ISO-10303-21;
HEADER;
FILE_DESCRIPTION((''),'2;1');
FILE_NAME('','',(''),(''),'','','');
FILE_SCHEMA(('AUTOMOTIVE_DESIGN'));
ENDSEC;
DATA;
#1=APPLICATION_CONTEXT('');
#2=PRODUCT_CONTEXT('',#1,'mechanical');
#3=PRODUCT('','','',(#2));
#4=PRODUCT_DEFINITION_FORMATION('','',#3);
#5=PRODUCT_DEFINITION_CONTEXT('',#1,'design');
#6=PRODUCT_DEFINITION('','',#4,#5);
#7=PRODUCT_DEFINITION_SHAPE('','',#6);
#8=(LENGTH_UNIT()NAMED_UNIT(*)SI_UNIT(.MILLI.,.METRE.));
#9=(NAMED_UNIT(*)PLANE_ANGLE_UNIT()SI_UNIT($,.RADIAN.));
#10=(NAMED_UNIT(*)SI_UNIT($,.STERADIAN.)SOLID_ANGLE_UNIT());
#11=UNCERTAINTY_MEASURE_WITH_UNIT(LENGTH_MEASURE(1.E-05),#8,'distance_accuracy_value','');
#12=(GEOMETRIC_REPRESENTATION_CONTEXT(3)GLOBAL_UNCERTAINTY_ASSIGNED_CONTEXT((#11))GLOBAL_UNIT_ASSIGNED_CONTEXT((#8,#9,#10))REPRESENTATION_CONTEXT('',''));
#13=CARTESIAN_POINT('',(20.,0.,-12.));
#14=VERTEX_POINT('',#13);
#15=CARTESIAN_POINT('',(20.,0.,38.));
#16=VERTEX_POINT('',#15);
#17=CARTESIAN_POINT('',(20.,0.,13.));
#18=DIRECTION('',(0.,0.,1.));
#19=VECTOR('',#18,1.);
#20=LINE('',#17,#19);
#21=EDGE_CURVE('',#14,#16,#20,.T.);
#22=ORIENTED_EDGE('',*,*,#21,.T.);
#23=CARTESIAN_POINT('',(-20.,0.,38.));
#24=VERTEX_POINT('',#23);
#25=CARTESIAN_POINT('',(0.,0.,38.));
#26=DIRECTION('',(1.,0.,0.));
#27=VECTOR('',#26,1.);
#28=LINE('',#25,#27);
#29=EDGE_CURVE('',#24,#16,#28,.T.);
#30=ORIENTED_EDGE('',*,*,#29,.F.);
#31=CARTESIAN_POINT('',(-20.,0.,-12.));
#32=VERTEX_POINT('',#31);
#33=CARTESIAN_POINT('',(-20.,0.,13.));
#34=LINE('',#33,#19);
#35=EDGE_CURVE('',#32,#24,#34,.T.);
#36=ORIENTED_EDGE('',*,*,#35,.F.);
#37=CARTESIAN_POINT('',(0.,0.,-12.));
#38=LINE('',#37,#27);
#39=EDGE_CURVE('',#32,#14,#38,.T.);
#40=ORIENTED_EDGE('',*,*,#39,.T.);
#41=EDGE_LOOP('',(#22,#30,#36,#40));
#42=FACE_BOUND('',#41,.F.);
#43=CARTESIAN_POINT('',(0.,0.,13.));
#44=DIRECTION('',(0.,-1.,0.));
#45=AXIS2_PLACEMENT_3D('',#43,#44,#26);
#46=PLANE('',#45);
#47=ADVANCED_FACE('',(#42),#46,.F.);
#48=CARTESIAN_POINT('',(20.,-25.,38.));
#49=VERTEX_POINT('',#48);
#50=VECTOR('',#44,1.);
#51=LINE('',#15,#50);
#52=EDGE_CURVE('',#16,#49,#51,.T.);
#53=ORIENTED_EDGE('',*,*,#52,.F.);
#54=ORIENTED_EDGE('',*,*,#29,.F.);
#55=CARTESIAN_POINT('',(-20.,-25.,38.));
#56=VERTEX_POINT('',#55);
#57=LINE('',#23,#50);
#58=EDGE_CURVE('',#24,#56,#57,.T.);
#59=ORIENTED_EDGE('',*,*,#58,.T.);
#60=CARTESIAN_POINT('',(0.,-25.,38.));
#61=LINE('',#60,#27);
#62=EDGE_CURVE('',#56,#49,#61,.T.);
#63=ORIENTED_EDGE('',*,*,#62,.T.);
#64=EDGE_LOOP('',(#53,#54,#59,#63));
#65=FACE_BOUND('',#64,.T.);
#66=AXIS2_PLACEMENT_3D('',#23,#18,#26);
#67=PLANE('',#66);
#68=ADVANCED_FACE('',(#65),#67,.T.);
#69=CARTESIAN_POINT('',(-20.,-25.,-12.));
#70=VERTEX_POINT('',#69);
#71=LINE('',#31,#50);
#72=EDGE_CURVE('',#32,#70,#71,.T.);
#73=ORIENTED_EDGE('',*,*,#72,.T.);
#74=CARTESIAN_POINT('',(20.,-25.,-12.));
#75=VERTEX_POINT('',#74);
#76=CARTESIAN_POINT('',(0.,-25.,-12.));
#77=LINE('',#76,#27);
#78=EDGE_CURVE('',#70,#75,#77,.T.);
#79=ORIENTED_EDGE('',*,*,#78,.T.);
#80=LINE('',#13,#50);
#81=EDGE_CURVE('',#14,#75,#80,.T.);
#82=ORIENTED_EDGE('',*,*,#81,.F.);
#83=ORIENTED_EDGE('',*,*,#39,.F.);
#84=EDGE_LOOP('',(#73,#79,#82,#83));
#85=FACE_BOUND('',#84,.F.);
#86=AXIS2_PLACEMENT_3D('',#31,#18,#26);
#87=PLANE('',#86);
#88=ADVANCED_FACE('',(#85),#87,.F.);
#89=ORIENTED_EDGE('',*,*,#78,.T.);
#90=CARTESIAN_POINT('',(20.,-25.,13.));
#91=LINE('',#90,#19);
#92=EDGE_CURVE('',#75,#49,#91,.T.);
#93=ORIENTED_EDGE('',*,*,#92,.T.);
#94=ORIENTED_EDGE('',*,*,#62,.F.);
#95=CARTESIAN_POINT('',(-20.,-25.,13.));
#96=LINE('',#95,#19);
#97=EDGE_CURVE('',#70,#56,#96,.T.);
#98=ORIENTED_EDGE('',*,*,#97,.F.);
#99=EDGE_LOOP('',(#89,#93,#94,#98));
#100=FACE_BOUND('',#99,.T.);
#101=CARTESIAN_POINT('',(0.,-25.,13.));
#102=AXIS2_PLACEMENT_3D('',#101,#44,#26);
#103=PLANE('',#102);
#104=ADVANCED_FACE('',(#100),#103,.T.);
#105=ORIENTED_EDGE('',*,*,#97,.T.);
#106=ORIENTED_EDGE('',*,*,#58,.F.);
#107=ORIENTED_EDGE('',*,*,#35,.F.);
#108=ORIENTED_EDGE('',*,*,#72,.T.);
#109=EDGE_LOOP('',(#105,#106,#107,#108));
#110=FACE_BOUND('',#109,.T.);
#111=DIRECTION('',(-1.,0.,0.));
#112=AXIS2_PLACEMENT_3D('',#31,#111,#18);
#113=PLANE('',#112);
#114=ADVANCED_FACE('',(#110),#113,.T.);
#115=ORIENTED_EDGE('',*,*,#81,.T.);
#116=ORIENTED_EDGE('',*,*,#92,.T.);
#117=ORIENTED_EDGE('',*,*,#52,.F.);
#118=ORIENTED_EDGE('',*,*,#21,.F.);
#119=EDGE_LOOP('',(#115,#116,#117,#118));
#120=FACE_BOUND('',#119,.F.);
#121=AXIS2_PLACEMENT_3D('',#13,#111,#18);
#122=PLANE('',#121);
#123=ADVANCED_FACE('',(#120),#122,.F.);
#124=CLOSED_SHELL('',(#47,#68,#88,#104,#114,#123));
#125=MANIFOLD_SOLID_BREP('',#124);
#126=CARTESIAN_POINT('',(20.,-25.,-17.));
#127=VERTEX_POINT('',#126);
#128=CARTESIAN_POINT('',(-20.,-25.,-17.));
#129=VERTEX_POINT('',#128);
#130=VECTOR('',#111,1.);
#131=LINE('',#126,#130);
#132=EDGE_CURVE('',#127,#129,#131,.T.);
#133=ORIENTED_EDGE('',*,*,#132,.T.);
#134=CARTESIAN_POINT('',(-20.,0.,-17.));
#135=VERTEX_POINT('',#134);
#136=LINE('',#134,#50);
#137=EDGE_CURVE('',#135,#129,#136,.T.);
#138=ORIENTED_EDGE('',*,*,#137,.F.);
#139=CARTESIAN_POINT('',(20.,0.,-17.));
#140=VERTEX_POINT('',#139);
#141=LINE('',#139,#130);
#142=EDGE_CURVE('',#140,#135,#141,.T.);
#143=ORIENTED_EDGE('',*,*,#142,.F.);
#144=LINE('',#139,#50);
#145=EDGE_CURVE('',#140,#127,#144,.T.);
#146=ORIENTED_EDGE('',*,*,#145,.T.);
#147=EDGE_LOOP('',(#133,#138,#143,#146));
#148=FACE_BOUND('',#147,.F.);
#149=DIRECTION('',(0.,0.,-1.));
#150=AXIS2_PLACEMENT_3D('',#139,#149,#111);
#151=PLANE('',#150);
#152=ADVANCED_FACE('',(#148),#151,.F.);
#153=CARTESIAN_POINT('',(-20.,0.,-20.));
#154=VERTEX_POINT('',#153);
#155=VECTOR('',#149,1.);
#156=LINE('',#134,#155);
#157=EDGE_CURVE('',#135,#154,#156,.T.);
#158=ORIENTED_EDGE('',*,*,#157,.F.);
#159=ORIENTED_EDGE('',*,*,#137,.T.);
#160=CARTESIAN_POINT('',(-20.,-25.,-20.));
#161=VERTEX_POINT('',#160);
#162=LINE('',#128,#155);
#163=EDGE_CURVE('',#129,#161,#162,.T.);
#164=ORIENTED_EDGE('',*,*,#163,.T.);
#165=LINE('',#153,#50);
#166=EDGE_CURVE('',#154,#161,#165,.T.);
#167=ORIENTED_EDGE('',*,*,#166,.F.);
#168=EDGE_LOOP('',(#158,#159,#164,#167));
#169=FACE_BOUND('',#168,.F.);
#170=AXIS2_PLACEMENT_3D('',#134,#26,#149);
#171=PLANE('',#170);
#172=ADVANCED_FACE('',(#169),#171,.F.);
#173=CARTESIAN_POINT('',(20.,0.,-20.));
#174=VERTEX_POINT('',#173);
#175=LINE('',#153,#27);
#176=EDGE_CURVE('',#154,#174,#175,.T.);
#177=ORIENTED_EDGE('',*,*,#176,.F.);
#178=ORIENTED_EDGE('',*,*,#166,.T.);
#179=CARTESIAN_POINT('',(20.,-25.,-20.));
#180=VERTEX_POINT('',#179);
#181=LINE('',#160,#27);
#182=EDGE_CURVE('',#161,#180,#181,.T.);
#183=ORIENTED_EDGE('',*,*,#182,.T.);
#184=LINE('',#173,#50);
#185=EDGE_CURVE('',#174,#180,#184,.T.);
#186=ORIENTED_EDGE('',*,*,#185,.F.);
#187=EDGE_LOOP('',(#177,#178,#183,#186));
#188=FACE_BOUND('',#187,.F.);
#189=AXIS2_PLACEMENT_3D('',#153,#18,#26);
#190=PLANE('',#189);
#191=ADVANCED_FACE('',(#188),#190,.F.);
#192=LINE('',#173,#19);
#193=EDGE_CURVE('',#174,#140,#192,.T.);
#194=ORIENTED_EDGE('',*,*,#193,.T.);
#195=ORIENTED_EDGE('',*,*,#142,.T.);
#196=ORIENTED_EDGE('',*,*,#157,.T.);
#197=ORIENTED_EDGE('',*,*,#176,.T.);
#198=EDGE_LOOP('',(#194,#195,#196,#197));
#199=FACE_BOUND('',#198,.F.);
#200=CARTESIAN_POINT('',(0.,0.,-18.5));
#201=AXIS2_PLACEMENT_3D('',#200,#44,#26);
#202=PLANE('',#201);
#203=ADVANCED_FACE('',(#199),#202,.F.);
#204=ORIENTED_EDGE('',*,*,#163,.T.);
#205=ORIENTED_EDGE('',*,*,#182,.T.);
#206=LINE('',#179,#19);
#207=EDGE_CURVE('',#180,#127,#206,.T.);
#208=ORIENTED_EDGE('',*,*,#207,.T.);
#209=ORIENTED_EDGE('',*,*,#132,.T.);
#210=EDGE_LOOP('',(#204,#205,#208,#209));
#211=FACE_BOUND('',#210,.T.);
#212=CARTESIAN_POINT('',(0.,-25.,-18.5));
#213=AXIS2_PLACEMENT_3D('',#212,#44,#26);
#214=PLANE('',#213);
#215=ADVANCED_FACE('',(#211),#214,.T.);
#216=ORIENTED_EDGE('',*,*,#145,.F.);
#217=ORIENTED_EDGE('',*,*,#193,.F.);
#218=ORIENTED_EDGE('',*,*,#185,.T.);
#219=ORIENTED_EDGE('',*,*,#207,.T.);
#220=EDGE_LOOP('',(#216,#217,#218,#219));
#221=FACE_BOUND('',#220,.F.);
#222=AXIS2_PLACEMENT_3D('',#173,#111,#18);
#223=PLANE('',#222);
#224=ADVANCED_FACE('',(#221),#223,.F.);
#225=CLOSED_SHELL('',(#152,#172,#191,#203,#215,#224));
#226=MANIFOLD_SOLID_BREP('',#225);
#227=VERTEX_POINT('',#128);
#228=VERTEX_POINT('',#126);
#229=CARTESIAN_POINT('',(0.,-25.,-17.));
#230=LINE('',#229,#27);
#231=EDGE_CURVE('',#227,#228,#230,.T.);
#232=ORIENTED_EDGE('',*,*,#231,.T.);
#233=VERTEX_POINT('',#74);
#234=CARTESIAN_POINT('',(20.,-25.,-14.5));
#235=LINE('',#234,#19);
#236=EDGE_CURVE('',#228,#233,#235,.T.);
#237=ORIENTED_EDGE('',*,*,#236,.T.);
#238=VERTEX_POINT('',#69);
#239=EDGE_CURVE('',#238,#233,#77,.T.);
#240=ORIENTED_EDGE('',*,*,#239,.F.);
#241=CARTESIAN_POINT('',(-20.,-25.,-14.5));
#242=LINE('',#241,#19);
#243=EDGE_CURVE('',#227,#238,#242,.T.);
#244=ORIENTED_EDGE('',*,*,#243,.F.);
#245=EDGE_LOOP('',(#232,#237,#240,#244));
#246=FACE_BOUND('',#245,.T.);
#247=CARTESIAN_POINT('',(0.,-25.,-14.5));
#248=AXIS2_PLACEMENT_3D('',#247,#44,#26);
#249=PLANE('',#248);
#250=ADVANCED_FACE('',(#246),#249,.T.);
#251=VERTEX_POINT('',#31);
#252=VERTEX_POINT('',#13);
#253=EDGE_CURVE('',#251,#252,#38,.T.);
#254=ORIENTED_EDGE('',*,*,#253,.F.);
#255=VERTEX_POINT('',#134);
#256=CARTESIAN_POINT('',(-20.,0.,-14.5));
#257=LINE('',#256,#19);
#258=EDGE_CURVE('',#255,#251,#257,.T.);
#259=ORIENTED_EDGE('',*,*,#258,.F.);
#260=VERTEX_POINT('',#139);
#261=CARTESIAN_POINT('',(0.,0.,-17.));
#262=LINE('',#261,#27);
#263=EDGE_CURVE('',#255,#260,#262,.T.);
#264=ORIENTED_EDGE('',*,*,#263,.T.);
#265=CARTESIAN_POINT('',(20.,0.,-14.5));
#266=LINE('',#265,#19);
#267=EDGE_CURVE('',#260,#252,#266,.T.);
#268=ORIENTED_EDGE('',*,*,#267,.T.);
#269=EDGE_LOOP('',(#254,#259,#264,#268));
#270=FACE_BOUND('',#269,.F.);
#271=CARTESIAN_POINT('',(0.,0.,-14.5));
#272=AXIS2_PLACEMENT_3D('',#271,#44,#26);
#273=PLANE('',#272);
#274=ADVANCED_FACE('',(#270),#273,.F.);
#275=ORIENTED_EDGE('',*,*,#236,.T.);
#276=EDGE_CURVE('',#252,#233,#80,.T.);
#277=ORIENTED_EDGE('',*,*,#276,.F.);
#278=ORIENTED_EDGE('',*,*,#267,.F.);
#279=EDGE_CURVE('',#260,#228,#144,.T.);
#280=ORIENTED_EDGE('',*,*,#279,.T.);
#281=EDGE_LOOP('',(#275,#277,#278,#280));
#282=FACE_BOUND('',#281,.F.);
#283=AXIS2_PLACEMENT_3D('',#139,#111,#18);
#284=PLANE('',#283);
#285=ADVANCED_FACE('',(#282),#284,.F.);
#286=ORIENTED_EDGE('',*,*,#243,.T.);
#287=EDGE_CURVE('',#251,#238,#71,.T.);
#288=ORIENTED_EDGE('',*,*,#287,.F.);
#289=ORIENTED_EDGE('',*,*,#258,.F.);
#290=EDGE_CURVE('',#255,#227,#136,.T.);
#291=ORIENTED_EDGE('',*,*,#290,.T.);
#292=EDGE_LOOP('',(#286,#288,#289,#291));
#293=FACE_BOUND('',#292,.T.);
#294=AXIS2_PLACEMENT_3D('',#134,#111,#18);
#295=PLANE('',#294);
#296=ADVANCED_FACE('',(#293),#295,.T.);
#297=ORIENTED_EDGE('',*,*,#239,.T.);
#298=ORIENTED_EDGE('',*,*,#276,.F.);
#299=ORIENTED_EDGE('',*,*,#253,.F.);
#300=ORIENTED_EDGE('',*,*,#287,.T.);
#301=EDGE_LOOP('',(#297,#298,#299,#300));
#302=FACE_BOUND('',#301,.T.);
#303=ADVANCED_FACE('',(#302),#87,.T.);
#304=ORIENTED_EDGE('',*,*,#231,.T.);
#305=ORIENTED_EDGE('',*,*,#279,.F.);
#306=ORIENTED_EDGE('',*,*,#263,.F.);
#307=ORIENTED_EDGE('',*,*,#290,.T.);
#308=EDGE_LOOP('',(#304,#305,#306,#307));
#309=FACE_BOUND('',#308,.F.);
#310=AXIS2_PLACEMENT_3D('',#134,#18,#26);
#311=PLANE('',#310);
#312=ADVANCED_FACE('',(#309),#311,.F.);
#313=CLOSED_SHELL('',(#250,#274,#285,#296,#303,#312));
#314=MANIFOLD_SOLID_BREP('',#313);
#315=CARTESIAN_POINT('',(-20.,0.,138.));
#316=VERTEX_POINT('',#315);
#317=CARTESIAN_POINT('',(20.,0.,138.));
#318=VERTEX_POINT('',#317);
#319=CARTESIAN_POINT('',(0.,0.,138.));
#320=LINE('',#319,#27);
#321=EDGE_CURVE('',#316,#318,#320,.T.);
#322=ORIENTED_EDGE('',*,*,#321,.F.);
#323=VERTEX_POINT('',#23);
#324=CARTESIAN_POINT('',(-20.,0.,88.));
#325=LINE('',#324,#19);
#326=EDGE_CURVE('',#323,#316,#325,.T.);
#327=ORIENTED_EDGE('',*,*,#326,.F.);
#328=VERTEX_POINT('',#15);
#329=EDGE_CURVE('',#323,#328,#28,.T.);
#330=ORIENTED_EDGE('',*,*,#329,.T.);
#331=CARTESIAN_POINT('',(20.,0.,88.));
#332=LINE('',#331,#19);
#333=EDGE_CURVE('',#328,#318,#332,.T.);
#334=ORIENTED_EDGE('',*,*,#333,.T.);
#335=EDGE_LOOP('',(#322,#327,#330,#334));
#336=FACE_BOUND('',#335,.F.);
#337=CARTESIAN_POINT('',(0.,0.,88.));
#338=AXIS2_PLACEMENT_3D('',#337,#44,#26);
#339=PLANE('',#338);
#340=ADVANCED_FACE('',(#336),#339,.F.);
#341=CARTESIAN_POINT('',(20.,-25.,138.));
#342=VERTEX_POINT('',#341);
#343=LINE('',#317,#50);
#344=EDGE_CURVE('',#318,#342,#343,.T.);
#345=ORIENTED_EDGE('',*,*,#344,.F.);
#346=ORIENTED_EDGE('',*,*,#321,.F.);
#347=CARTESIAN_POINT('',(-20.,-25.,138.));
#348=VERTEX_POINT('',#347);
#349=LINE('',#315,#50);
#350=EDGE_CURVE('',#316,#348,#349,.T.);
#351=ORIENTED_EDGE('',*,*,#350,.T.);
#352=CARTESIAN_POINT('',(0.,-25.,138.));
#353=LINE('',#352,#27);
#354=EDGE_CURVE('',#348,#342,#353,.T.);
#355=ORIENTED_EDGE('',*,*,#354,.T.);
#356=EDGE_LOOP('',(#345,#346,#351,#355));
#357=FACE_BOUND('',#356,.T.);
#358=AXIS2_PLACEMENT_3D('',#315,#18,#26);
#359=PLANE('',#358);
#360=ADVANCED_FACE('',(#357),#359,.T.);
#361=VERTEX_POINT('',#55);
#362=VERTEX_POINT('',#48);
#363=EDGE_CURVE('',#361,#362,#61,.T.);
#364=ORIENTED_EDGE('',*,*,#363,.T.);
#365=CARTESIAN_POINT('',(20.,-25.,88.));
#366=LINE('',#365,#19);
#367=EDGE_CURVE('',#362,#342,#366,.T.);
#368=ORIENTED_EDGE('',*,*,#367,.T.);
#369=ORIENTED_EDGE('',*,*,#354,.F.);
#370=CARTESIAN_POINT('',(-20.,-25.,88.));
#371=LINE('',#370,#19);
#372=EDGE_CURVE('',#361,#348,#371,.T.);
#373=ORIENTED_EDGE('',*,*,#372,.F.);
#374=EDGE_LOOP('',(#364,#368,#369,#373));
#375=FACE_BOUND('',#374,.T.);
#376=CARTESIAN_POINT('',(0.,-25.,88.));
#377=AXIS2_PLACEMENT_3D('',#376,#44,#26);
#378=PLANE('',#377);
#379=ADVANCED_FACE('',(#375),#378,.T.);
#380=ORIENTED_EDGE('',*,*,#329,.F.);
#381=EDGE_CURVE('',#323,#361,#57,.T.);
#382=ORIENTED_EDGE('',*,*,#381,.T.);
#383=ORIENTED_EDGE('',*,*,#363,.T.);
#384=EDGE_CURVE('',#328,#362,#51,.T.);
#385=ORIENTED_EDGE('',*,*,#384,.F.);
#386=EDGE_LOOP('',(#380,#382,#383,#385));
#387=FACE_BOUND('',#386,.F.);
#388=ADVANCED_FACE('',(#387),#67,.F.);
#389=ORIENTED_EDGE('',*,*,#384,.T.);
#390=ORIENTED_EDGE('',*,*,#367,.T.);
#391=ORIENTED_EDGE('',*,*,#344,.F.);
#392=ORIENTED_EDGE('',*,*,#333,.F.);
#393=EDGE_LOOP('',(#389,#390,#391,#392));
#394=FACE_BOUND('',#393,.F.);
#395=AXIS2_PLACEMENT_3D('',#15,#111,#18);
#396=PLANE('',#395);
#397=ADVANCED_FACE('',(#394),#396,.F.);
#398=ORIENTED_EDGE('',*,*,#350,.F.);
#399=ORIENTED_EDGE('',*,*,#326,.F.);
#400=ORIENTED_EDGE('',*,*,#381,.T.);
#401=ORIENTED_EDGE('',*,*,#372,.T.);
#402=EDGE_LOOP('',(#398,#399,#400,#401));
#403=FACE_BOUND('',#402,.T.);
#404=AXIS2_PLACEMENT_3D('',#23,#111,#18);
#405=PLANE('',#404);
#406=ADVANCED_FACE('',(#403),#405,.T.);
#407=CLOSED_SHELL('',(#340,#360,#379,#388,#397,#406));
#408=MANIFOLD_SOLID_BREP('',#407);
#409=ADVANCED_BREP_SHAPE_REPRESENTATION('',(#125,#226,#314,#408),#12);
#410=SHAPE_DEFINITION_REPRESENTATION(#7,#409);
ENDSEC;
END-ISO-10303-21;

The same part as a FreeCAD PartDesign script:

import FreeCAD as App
import Part
import Sketcher
Q = App.Units.Quantity

doc = App.newDocument("Part")
params = doc.addObject("Spreadsheet::Sheet", "Params")
for row, (alias, value) in enumerate([
    ("sketch1_width", "40 mm"),
    ("sketch1_height", "100 mm"),
    ("pad1_length", "25 mm"),
    ("sketch2_width", "40 mm"),
    ("sketch2_height", "50 mm"),
    ("pad2_length", "25 mm"),
    ("sketch3_width", "40 mm"),
    ("sketch3_height", "5 mm"),
    ("pad3_length", "25 mm"),
    ("sketch4_width", "40 mm"),
    ("sketch4_height", "3 mm"),
    ("pad4_length", "25 mm"),
], start=1):
    params.set(f"A{row}", alias)
    params.set(f"B{row}", "=" + value)
    params.setAlias(f"B{row}", alias)

body = doc.addObject("PartDesign::Body", "Body")

sketch1 = body.newObject("Sketcher::SketchObject", "Sketch")
sketch1.AttachmentSupport = (doc.getObject("XZ_Plane"), [""])
sketch1.MapMode = "FlatFace"
sketch1.addGeometry(Part.LineSegment(App.Vector(-20, 138, 0), App.Vector(-20, 38, 0)), False)
sketch1.addGeometry(Part.LineSegment(App.Vector(-20, 38, 0), App.Vector(20, 38, 0)), False)
sketch1.addGeometry(Part.LineSegment(App.Vector(20, 38, 0), App.Vector(20, 138, 0)), False)
sketch1.addGeometry(Part.LineSegment(App.Vector(20, 138, 0), App.Vector(-20, 138, 0)), False)
sketch1.addConstraint(Sketcher.Constraint("Coincident", 0, 2, 1, 1))
sketch1.addConstraint(Sketcher.Constraint("Coincident", 1, 2, 2, 1))
sketch1.addConstraint(Sketcher.Constraint("Coincident", 2, 2, 3, 1))
sketch1.addConstraint(Sketcher.Constraint("Coincident", 3, 2, 0, 1))
sketch1.addConstraint(Sketcher.Constraint("Vertical", 0))
sketch1.addConstraint(Sketcher.Constraint("Horizontal", 1))
sketch1.addConstraint(Sketcher.Constraint("Vertical", 2))
sketch1.addConstraint(Sketcher.Constraint("Horizontal", 3))
sketch1.addConstraint(Sketcher.Constraint("DistanceX", 1, 1, 1, 2, Q("40 mm")))
sketch1.addConstraint(Sketcher.Constraint("DistanceY", 0, 2, 0, 1, Q("100 mm")))
sketch1.addConstraint(Sketcher.Constraint("DistanceX", 0, 2, -1, 1, Q("20 mm")))
sketch1.addConstraint(Sketcher.Constraint("DistanceY", -1, 1, 0, 2, Q("38 mm")))
sketch1.setExpression("Constraints[8]", "Params.sketch1_width")
sketch1.setExpression("Constraints[9]", "Params.sketch1_height")
pad1 = body.newObject("PartDesign::Pad", "Pad")
pad1.Profile = sketch1
pad1.setExpression("Length", "Params.pad1_length")
body2 = doc.addObject("PartDesign::Body", "Body001")

sketch2 = body2.newObject("Sketcher::SketchObject", "Sketch001")
sketch2.AttachmentSupport = (doc.getObject("XZ_Plane001"), [""])
sketch2.MapMode = "FlatFace"
sketch2.addGeometry(Part.LineSegment(App.Vector(-20, 38, 0), App.Vector(-20, -12, 0)), False)
sketch2.addGeometry(Part.LineSegment(App.Vector(-20, -12, 0), App.Vector(20, -12, 0)), False)
sketch2.addGeometry(Part.LineSegment(App.Vector(20, -12, 0), App.Vector(20, 38, 0)), False)
sketch2.addGeometry(Part.LineSegment(App.Vector(20, 38, 0), App.Vector(-20, 38, 0)), False)
sketch2.addConstraint(Sketcher.Constraint("Coincident", 0, 2, 1, 1))
sketch2.addConstraint(Sketcher.Constraint("Coincident", 1, 2, 2, 1))
sketch2.addConstraint(Sketcher.Constraint("Coincident", 2, 2, 3, 1))
sketch2.addConstraint(Sketcher.Constraint("Coincident", 3, 2, 0, 1))
sketch2.addConstraint(Sketcher.Constraint("Vertical", 0))
sketch2.addConstraint(Sketcher.Constraint("Horizontal", 1))
sketch2.addConstraint(Sketcher.Constraint("Vertical", 2))
sketch2.addConstraint(Sketcher.Constraint("Horizontal", 3))
sketch2.addConstraint(Sketcher.Constraint("DistanceX", 1, 1, 1, 2, Q("40 mm")))
sketch2.addConstraint(Sketcher.Constraint("DistanceY", 0, 2, 0, 1, Q("50 mm")))
sketch2.addConstraint(Sketcher.Constraint("DistanceX", 0, 2, -1, 1, Q("20 mm")))
sketch2.addConstraint(Sketcher.Constraint("DistanceY", 0, 2, -1, 1, Q("12 mm")))
sketch2.setExpression("Constraints[8]", "Params.sketch2_width")
sketch2.setExpression("Constraints[9]", "Params.sketch2_height")
pad2 = body2.newObject("PartDesign::Pad", "Pad001")
pad2.Profile = sketch2
pad2.setExpression("Length", "Params.pad2_length")
body3 = doc.addObject("PartDesign::Body", "Body002")

sketch3 = body3.newObject("Sketcher::SketchObject", "Sketch002")
sketch3.AttachmentSupport = (doc.getObject("XZ_Plane002"), [""])
sketch3.MapMode = "FlatFace"
sketch3.addGeometry(Part.LineSegment(App.Vector(-20, -12, 0), App.Vector(-20, -17, 0)), False)
sketch3.addGeometry(Part.LineSegment(App.Vector(-20, -17, 0), App.Vector(20, -17, 0)), False)
sketch3.addGeometry(Part.LineSegment(App.Vector(20, -17, 0), App.Vector(20, -12, 0)), False)
sketch3.addGeometry(Part.LineSegment(App.Vector(20, -12, 0), App.Vector(-20, -12, 0)), False)
sketch3.addConstraint(Sketcher.Constraint("Coincident", 0, 2, 1, 1))
sketch3.addConstraint(Sketcher.Constraint("Coincident", 1, 2, 2, 1))
sketch3.addConstraint(Sketcher.Constraint("Coincident", 2, 2, 3, 1))
sketch3.addConstraint(Sketcher.Constraint("Coincident", 3, 2, 0, 1))
sketch3.addConstraint(Sketcher.Constraint("Vertical", 0))
sketch3.addConstraint(Sketcher.Constraint("Horizontal", 1))
sketch3.addConstraint(Sketcher.Constraint("Vertical", 2))
sketch3.addConstraint(Sketcher.Constraint("Horizontal", 3))
sketch3.addConstraint(Sketcher.Constraint("DistanceX", 1, 1, 1, 2, Q("40 mm")))
sketch3.addConstraint(Sketcher.Constraint("DistanceY", 0, 2, 0, 1, Q("5 mm")))
sketch3.addConstraint(Sketcher.Constraint("DistanceX", 0, 2, -1, 1, Q("20 mm")))
sketch3.addConstraint(Sketcher.Constraint("DistanceY", 0, 2, -1, 1, Q("17 mm")))
sketch3.setExpression("Constraints[8]", "Params.sketch3_width")
sketch3.setExpression("Constraints[9]", "Params.sketch3_height")
pad3 = body3.newObject("PartDesign::Pad", "Pad002")
pad3.Profile = sketch3
pad3.setExpression("Length", "Params.pad3_length")
body4 = doc.addObject("PartDesign::Body", "Body003")

sketch4 = body4.newObject("Sketcher::SketchObject", "Sketch003")
sketch4.AttachmentSupport = (doc.getObject("XZ_Plane003"), [""])
sketch4.MapMode = "FlatFace"
sketch4.addGeometry(Part.LineSegment(App.Vector(-20, -17, 0), App.Vector(-20, -20, 0)), False)
sketch4.addGeometry(Part.LineSegment(App.Vector(-20, -20, 0), App.Vector(20, -20, 0)), False)
sketch4.addGeometry(Part.LineSegment(App.Vector(20, -20, 0), App.Vector(20, -17, 0)), False)
sketch4.addGeometry(Part.LineSegment(App.Vector(20, -17, 0), App.Vector(-20, -17, 0)), False)
sketch4.addConstraint(Sketcher.Constraint("Coincident", 0, 2, 1, 1))
sketch4.addConstraint(Sketcher.Constraint("Coincident", 1, 2, 2, 1))
sketch4.addConstraint(Sketcher.Constraint("Coincident", 2, 2, 3, 1))
sketch4.addConstraint(Sketcher.Constraint("Coincident", 3, 2, 0, 1))
sketch4.addConstraint(Sketcher.Constraint("Vertical", 0))
sketch4.addConstraint(Sketcher.Constraint("Horizontal", 1))
sketch4.addConstraint(Sketcher.Constraint("Vertical", 2))
sketch4.addConstraint(Sketcher.Constraint("Horizontal", 3))
sketch4.addConstraint(Sketcher.Constraint("DistanceX", 1, 1, 1, 2, Q("40 mm")))
sketch4.addConstraint(Sketcher.Constraint("DistanceY", 0, 2, 0, 1, Q("3 mm")))
sketch4.addConstraint(Sketcher.Constraint("DistanceX", 0, 2, -1, 1, Q("20 mm")))
sketch4.addConstraint(Sketcher.Constraint("DistanceY", 0, 2, -1, 1, Q("20 mm")))
sketch4.setExpression("Constraints[8]", "Params.sketch4_width")
sketch4.setExpression("Constraints[9]", "Params.sketch4_height")
pad4 = body4.newObject("PartDesign::Pad", "Pad003")
pad4.Profile = sketch4
pad4.setExpression("Length", "Params.pad4_length")

doc.recompute()
